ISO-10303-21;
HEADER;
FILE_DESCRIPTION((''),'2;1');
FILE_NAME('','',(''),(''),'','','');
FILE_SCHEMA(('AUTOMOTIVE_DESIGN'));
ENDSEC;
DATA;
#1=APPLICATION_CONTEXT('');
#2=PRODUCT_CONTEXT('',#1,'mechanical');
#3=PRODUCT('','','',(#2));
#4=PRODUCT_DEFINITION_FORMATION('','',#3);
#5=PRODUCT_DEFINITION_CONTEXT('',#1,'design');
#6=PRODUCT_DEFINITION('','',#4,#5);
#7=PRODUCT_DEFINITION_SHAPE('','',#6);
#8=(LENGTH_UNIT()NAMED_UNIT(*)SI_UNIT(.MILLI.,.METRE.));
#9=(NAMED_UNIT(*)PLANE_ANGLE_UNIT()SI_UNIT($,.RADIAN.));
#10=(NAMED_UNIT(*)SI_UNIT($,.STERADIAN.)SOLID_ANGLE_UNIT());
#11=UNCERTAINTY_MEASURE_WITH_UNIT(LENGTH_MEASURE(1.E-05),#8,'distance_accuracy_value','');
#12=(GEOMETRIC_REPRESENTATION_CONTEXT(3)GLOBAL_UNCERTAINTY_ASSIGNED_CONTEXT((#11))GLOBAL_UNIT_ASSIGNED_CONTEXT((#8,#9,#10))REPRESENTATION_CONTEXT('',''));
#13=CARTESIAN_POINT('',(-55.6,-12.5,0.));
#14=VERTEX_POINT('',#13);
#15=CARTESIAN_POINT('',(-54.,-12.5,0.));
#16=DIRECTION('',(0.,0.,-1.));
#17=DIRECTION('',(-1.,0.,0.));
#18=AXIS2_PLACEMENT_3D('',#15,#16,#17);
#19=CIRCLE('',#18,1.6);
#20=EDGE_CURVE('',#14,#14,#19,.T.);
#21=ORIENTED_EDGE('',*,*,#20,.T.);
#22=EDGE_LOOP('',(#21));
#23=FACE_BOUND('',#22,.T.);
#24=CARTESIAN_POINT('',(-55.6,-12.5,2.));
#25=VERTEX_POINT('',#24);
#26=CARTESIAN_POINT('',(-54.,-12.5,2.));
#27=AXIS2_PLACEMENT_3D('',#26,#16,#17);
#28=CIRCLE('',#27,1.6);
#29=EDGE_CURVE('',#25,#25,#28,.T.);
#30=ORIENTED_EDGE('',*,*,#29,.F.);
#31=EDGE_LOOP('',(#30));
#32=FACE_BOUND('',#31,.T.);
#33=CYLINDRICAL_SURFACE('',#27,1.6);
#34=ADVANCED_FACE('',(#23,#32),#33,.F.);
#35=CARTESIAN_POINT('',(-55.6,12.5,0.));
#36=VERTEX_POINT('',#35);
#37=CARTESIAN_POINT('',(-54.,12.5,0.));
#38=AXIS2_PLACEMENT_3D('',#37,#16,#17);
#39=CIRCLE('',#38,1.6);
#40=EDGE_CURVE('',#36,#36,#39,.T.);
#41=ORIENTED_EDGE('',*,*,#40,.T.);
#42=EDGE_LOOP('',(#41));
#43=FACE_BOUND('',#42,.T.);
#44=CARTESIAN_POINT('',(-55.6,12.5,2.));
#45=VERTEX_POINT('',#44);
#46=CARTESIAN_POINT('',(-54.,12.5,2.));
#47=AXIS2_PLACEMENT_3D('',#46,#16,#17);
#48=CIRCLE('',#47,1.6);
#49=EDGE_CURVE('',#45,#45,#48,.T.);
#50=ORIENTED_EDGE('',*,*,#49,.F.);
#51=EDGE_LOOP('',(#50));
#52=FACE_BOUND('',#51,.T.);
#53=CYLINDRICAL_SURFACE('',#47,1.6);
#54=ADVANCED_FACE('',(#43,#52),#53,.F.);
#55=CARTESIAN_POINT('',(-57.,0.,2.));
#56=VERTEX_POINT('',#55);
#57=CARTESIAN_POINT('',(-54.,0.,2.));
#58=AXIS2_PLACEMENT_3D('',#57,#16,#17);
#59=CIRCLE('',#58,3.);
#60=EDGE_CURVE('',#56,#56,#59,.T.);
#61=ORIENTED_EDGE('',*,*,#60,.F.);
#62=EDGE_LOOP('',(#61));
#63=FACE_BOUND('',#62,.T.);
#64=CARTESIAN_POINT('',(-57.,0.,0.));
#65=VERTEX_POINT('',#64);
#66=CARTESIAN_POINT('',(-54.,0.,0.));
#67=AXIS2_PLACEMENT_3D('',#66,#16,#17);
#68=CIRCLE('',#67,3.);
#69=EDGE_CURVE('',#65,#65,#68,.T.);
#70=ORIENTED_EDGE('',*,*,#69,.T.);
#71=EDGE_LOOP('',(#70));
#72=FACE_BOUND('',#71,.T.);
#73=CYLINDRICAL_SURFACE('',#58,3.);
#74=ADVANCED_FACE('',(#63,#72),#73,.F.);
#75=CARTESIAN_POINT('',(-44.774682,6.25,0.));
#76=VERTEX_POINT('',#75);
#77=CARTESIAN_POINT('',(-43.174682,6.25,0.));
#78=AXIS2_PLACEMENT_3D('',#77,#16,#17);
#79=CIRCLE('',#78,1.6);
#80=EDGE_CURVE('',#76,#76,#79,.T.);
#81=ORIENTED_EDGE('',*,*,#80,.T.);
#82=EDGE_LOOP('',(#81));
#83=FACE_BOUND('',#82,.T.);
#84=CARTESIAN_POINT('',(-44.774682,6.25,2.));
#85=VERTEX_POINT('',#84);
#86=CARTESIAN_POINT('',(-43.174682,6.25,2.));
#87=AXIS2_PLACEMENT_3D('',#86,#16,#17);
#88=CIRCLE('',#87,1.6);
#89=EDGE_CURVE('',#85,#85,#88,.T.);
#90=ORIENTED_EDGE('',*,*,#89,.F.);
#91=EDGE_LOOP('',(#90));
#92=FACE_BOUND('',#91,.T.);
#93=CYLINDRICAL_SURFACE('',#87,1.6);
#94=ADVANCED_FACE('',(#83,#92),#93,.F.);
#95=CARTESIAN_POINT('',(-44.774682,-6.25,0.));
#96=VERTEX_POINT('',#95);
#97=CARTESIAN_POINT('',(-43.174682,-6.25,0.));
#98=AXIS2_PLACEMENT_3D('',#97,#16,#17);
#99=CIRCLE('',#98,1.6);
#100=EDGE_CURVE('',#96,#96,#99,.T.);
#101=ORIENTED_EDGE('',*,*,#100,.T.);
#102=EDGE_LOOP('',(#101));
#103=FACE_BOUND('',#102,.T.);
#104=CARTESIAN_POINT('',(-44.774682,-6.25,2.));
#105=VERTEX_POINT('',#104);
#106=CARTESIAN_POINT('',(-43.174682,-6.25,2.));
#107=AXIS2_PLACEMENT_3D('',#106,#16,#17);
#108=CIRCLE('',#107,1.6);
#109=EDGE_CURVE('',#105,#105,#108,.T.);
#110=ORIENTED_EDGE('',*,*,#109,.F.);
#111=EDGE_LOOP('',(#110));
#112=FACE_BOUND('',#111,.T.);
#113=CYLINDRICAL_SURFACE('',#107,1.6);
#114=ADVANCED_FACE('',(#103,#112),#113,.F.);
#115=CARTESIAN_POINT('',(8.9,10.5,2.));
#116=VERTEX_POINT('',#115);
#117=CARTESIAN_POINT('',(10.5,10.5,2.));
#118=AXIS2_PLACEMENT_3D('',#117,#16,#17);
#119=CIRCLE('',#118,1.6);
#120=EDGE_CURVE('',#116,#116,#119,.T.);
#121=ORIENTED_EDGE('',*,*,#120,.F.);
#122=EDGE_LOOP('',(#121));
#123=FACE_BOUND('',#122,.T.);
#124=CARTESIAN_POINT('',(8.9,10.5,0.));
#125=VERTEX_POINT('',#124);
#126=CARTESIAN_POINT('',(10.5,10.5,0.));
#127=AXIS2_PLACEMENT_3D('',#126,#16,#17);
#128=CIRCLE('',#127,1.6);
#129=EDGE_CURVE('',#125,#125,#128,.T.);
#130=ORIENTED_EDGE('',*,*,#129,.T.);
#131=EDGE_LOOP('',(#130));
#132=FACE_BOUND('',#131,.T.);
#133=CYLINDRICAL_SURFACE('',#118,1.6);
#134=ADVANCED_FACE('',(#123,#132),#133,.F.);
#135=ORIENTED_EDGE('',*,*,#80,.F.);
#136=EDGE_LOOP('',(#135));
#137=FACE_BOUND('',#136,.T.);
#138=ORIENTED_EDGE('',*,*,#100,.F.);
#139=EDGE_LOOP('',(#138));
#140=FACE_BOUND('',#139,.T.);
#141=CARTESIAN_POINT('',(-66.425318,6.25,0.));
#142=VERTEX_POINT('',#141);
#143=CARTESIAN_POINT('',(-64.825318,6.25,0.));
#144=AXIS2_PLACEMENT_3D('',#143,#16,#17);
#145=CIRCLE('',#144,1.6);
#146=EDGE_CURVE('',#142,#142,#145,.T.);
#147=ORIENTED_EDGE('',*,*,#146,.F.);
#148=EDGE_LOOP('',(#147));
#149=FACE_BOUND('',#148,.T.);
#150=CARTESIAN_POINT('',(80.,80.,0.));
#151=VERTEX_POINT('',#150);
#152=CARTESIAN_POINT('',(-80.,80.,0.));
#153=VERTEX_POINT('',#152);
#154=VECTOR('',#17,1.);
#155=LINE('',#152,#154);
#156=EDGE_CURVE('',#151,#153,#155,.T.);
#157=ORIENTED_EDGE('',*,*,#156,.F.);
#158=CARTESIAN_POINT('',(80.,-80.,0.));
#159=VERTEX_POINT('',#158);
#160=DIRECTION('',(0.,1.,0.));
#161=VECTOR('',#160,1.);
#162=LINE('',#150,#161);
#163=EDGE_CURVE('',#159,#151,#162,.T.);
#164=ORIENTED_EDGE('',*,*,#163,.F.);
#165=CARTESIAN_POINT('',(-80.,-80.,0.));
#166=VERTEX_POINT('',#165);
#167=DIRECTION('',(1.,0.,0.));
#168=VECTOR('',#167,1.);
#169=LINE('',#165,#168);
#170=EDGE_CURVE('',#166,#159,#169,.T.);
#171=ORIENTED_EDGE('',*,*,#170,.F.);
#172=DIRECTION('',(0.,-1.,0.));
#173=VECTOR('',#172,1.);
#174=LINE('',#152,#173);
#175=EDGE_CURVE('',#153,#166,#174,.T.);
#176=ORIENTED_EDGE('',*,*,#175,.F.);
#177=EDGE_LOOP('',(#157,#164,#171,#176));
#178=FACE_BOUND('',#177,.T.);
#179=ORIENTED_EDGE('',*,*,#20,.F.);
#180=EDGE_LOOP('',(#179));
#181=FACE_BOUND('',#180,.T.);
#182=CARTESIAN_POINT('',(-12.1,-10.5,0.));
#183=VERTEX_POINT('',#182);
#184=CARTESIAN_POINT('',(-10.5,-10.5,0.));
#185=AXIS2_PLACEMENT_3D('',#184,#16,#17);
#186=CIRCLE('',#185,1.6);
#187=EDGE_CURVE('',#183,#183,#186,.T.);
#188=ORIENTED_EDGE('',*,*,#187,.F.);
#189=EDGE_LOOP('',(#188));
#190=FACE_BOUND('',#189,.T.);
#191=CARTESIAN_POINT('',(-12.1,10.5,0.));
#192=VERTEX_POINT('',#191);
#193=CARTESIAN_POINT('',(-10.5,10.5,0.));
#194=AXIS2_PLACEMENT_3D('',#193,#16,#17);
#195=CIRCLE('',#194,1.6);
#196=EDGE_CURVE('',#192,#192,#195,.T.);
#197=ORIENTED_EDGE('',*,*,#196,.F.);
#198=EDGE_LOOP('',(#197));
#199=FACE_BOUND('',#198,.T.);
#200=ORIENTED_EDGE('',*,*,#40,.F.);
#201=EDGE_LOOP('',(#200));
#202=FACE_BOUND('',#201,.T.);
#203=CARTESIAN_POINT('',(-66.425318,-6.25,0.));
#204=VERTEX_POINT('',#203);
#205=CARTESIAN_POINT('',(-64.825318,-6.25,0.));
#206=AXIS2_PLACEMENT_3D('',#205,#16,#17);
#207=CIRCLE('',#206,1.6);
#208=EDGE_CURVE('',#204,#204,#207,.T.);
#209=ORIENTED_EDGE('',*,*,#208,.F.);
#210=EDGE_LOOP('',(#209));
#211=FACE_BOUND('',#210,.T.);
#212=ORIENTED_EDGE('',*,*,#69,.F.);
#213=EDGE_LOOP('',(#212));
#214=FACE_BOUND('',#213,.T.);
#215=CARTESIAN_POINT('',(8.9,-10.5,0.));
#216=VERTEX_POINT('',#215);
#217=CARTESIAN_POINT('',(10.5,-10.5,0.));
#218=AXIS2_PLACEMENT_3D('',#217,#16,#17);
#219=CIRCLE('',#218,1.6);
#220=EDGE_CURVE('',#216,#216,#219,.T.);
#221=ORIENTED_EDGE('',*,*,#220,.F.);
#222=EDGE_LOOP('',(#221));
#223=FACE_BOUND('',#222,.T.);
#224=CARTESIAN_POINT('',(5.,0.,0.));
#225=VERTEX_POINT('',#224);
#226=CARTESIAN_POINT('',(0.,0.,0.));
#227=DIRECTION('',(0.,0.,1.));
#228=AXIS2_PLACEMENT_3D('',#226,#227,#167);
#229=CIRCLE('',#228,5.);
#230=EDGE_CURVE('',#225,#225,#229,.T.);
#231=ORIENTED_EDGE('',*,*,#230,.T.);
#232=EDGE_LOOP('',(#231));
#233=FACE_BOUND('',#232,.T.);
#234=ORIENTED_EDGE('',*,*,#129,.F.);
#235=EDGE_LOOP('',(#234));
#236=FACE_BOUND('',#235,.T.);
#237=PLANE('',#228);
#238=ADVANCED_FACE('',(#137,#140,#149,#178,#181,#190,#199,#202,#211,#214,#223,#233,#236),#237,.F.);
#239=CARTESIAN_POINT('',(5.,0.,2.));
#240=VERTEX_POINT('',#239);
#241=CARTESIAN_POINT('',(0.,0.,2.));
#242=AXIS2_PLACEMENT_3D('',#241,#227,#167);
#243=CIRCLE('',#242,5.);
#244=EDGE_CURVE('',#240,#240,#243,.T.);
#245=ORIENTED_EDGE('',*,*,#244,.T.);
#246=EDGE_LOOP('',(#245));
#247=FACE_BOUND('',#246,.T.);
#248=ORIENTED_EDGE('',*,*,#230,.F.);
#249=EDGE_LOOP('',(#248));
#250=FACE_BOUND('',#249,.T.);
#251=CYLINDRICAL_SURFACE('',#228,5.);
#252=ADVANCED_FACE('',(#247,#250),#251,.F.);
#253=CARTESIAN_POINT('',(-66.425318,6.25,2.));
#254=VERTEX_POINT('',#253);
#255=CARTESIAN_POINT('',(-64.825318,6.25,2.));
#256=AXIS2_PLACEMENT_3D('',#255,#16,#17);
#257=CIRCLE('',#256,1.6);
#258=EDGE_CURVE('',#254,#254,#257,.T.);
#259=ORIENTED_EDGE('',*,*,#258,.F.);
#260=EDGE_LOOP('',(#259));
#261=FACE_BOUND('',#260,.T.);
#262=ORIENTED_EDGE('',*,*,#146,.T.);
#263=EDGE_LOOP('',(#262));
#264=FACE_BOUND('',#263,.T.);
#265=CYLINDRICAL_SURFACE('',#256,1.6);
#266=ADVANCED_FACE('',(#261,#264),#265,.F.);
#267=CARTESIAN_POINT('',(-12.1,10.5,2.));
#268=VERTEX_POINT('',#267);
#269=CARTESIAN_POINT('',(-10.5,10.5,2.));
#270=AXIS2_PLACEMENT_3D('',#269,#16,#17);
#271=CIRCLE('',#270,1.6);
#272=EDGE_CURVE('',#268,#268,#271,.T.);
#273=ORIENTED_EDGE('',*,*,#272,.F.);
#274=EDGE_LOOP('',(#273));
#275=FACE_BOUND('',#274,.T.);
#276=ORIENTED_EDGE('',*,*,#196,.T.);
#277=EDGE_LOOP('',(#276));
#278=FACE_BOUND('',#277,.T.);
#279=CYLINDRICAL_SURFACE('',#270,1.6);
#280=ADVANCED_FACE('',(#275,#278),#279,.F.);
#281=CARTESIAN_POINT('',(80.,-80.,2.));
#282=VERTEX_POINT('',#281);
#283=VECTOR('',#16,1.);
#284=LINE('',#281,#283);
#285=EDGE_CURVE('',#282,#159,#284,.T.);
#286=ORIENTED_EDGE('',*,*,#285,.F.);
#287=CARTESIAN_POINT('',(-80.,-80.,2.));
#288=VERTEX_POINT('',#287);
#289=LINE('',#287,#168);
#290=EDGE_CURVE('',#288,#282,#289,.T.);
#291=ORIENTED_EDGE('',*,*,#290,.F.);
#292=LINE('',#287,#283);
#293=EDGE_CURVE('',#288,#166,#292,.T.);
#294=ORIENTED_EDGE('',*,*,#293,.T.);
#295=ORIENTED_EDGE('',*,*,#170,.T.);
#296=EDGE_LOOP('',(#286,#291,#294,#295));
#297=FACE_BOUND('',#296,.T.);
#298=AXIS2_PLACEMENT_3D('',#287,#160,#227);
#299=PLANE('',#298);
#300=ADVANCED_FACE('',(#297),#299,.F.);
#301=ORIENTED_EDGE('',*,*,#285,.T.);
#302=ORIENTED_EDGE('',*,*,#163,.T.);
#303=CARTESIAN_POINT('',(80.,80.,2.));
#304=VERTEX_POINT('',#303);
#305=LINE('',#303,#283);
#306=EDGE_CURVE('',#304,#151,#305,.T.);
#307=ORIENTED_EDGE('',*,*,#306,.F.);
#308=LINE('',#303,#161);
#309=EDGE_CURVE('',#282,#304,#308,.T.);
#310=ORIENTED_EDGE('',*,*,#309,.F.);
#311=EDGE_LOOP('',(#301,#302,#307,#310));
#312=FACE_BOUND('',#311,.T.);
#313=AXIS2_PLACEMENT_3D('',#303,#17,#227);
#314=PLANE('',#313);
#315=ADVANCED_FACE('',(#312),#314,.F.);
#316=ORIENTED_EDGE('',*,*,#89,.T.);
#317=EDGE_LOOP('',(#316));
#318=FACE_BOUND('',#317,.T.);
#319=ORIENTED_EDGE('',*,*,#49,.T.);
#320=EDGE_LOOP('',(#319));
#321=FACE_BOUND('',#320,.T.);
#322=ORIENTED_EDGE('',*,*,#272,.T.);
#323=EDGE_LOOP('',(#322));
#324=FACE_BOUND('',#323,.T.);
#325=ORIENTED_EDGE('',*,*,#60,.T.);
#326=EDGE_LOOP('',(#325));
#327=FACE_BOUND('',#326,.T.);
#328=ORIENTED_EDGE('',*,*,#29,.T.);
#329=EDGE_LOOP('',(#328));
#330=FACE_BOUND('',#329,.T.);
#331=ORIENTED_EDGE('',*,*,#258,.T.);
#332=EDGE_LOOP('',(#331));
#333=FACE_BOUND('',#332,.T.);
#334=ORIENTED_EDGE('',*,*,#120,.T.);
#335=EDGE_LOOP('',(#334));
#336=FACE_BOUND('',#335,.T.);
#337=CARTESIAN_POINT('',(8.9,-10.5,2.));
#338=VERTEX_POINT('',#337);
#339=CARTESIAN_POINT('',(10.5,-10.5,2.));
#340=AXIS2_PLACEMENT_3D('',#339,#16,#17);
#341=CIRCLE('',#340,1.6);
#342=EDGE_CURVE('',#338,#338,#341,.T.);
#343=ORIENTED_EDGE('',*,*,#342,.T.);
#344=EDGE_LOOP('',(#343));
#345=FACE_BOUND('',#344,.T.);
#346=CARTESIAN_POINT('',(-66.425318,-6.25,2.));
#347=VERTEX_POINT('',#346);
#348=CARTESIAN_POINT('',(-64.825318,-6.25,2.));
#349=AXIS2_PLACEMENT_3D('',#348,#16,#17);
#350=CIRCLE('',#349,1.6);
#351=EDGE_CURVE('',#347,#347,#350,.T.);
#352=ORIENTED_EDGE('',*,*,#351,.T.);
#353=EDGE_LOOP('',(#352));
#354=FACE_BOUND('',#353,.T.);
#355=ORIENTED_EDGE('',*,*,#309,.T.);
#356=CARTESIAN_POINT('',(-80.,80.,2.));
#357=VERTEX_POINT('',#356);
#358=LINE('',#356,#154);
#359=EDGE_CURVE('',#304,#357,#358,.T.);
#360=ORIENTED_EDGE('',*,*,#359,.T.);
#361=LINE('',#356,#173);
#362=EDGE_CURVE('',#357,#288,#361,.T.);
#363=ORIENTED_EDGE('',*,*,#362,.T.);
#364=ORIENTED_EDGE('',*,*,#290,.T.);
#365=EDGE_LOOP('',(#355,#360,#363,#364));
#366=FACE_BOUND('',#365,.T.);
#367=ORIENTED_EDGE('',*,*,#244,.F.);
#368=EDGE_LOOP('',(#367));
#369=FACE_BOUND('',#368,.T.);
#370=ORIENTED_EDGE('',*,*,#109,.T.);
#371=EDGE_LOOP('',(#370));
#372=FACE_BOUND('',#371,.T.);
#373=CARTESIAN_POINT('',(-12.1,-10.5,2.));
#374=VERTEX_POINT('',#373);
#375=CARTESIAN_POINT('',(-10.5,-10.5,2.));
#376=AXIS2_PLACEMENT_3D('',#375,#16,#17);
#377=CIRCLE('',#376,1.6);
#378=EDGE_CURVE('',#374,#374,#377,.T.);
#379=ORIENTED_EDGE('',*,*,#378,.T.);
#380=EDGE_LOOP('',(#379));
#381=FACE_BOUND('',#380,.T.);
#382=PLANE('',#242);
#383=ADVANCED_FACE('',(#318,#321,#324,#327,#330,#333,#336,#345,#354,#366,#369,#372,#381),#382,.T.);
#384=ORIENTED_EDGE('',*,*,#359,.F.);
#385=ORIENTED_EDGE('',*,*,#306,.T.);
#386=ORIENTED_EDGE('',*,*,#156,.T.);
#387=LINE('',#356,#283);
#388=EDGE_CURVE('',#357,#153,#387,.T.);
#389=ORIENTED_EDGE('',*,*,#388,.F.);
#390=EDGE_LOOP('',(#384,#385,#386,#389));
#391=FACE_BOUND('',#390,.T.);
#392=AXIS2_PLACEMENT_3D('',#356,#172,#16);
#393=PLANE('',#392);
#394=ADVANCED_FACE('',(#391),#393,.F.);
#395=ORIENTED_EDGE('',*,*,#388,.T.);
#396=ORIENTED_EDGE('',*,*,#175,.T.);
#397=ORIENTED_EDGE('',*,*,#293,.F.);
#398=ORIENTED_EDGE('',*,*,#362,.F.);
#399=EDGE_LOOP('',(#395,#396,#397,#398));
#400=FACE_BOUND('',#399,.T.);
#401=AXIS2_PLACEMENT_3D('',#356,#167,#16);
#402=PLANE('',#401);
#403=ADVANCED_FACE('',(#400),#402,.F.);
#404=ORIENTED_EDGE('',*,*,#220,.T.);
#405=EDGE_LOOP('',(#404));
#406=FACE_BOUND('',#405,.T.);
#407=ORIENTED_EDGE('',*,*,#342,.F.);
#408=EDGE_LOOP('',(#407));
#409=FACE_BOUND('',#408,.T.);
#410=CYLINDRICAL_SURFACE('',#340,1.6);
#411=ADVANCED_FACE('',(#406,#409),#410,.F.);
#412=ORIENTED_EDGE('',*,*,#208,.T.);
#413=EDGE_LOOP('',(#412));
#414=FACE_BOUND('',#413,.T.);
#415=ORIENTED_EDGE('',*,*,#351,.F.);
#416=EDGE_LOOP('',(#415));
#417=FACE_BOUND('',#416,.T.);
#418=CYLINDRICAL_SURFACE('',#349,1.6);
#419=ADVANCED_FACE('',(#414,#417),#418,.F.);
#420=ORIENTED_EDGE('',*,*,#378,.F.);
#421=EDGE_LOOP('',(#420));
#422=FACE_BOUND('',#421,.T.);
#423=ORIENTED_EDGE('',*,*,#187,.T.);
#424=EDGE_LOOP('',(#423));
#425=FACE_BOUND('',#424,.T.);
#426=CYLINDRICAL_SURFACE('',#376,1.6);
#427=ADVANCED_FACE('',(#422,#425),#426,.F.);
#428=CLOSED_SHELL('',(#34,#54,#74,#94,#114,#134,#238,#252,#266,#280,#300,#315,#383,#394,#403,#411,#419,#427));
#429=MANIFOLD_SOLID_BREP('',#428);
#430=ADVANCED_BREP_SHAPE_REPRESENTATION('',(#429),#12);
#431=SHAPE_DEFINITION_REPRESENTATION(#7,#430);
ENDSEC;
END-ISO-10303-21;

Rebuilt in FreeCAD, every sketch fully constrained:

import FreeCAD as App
import Part
import Sketcher

V = App.Vector
Q = App.Units.Quantity


def add_polygon(sketch, points):
    """Adds a closed chain of lines whose ends are joined by coincident constraints."""
    first, n = sketch.GeometryCount, len(points)
    for a, b in zip(points, points[1:] + points[:1]):
        sketch.addGeometry(Part.LineSegment(App.Vector(*a, 0), App.Vector(*b, 0)), False)
    for i in range(n):
        sketch.addConstraint(Sketcher.Constraint("Coincident", first + i, 2, first + (i + 1) % n, 1))

doc = App.newDocument("Part")
params = doc.addObject("Spreadsheet::Sheet", "Params")
for row, (alias, value) in enumerate([
    ("sketch1_width", "160 mm"),
    ("pad1_length", "2 mm"),
    ("sketch2_diameter", "10 mm"),
    ("pocket1_length", "2 mm"),
    ("sketch3_diameter", "3.2 mm"),
    ("pocket2_length", "2 mm"),
    ("sketch4_diameter", "6 mm"),
    ("sketch4_diameter2", "3.2 mm"),
    ("pocket3_length", "2 mm"),
], start=1):
    params.set(f"A{row}", alias)
    params.set(f"B{row}", "=" + value)
    params.setAlias(f"B{row}", alias)

body = doc.addObject("PartDesign::Body", "Body")

# Sketch on XY plane
sketch1 = body.newObject("Sketcher::SketchObject", "Sketch")
sketch1.AttachmentSupport = (doc.getObject("XY_Plane"), [""])
sketch1.MapMode = "FlatFace"
add_polygon(sketch1, [(-80, 80), (-80, -80), (80, -80), (80, 80)])  # lines 0-3
sketch1.addConstraint([
    Sketcher.Constraint("Vertical", 0),
    Sketcher.Constraint("Horizontal", 1),
    Sketcher.Constraint("Vertical", 2),
    Sketcher.Constraint("Horizontal", 3),
    Sketcher.Constraint("Symmetric", 0, 2, 2, 2, -1, 1),
    Sketcher.Constraint("Equal", 3, 0),
    Sketcher.Constraint("DistanceX", 1, 1, 1, 2, Q("160 mm")),
])
sketch1.setExpression("Constraints[10]", "Params.sketch1_width")
pad1 = body.newObject("PartDesign::Pad", "Pad")
pad1.Profile = sketch1
pad1.setExpression("Length", "Params.pad1_length")

# Sketch on XY plane
sketch2 = body.newObject("Sketcher::SketchObject", "Sketch001")
sketch2.AttachmentSupport = (doc.getObject("XY_Plane"), [""])
sketch2.MapMode = "FlatFace"
sketch2.AttachmentOffset = App.Placement(V(0, 0, 2), App.Rotation())
sketch2.addGeometry(Part.Circle(V(0, 0, 0), V(0, 0, 1), 5), False)
sketch2.addConstraint([
    Sketcher.Constraint("Coincident", 0, 3, -1, 1),
    Sketcher.Constraint("Diameter", 0, Q("10 mm")),
])
sketch2.setExpression("Constraints[1]", "Params.sketch2_diameter")
pocket1 = body.newObject("PartDesign::Pocket", "Pocket")
pocket1.Profile = sketch2
pocket1.setExpression("Length", "Params.pocket1_length")

# Sketch on XY plane
sketch3 = body.newObject("Sketcher::SketchObject", "Sketch002")
sketch3.AttachmentSupport = (doc.getObject("XY_Plane"), [""])
sketch3.MapMode = "FlatFace"
sketch3.addGeometry([
    Part.Circle(V(-10.5, 10.5, 0), V(0, 0, 1), 1.6),
    Part.Circle(V(-10.5, -10.5, 0), V(0, 0, 1), 1.6),
    Part.Circle(V(10.5, -10.5, 0), V(0, 0, 1), 1.6),
    Part.Circle(V(10.5, 10.5, 0), V(0, 0, 1), 1.6),
], False)
sketch3.addConstraint([
    Sketcher.Constraint("Equal", 0, 1),
    Sketcher.Constraint("Equal", 1, 2),
    Sketcher.Constraint("Equal", 2, 3),
    Sketcher.Constraint("Symmetric", 0, 3, 2, 3, -1, 1),
    Sketcher.Constraint("Symmetric", 1, 3, 3, 3, -1, 1),
    Sketcher.Constraint("Symmetric", 1, 3, 2, 3, -2),
    Sketcher.Constraint("Diameter", 0, Q("3.2 mm")),
    Sketcher.Constraint("DistanceY", 1, 3, 0, 3, Q("21 mm")),
    Sketcher.Constraint("DistanceX", 1, 3, 2, 3, Q("21 mm")),
])
sketch3.setExpression("Constraints[6]", "Params.sketch3_diameter")
pocket2 = body.newObject("PartDesign::Pocket", "Pocket001")
pocket2.Profile = sketch3
pocket2.setExpression("Length", "Params.pocket2_length")
pocket2.Reversed = True

# Sketch on XY plane
sketch4 = body.newObject("Sketcher::SketchObject", "Sketch003")
sketch4.AttachmentSupport = (doc.getObject("XY_Plane"), [""])
sketch4.MapMode = "FlatFace"
sketch4.addGeometry([
    Part.Circle(V(-54, 0, 0), V(0, 0, 1), 3),  # 0
    Part.Circle(V(-54, 12.5, 0), V(0, 0, 1), 1.6),  # 1
    Part.Circle(V(-64.8, 6.2, 0), V(0, 0, 1), 1.6),  # 2
    Part.Circle(V(-64.8, -6.2, 0), V(0, 0, 1), 1.6),  # 3
    Part.Circle(V(-54, -12.5, 0), V(0, 0, 1), 1.6),  # 4
    Part.Circle(V(-43.2, -6.2, 0), V(0, 0, 1), 1.6),  # 5
    Part.Circle(V(-43.2, 6.2, 0), V(0, 0, 1), 1.6),  # 6
], False)
sketch4.addConstraint([
    Sketcher.Constraint("Equal", 1, 2),
    Sketcher.Constraint("Equal", 2, 3),
    Sketcher.Constraint("Equal", 3, 4),
    Sketcher.Constraint("Equal", 4, 5),
    Sketcher.Constraint("Equal", 5, 6),
    Sketcher.Constraint("Symmetric", 2, 3, 3, 3, -1),
    Sketcher.Constraint("Symmetric", 1, 3, 4, 3, -1),
    Sketcher.Constraint("Symmetric", 5, 3, 6, 3, -1),
    Sketcher.Constraint("PointOnObject", 0, 3, -1),
    Sketcher.Constraint("Horizontal", 3, 3, 5, 3),
    Sketcher.Constraint("Vertical", 0, 3, 1, 3),
    Sketcher.Constraint("Diameter", 0, Q("6 mm")),
    Sketcher.Constraint("Diameter", 1, Q("3.2 mm")),
    Sketcher.Constraint("DistanceX", 0, 3, -1, 1, Q("54 mm")),
    Sketcher.Constraint("DistanceY", 4, 3, 1, 3, Q("25 mm")),
    Sketcher.Constraint("DistanceY", 3, 3, 2, 3, Q("12.5 mm")),
    Sketcher.Constraint("DistanceX", 2, 3, -1, 1, Q("64.825318 mm")),
    Sketcher.Constraint("DistanceX", 5, 3, -1, 1, Q("43.174682 mm")),
])
sketch4.setExpression("Constraints[11]", "Params.sketch4_diameter")
sketch4.setExpression("Constraints[12]", "Params.sketch4_diameter2")
pocket3 = body.newObject("PartDesign::Pocket", "Pocket002")
pocket3.Profile = sketch4
pocket3.setExpression("Length", "Params.pocket3_length")
pocket3.Reversed = True

doc.recompute()
